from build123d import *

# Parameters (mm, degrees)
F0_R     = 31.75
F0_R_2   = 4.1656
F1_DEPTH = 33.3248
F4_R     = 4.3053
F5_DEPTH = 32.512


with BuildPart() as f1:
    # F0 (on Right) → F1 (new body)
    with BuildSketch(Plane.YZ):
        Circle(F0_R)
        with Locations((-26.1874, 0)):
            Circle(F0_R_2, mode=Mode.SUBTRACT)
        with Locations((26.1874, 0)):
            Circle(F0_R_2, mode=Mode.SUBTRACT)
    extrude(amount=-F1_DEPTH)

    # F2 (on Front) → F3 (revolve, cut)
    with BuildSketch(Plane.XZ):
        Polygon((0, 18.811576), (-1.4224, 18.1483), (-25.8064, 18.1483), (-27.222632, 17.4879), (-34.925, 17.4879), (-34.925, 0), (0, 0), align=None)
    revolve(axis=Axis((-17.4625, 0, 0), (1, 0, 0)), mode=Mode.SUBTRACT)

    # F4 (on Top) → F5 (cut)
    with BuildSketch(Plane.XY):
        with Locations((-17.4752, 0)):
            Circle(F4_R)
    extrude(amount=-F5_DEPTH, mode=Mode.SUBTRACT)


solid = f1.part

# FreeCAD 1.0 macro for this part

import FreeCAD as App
import Part
import Sketcher
Q = App.Units.Quantity


def add_polygon(sketch, points):
    """Adds a closed chain of lines whose ends are joined by coincident constraints."""
    first, n = sketch.GeometryCount, len(points)
    for a, b in zip(points, points[1:] + points[:1]):
        sketch.addGeometry(Part.LineSegment(App.Vector(*a, 0), App.Vector(*b, 0)), False)
    for i in range(n):
        sketch.addConstraint(Sketcher.Constraint("Coincident", first + i, 2, first + (i + 1) % n, 1))

doc = App.newDocument("Part")
body = doc.addObject("PartDesign::Body", "Body")

sketch1 = body.newObject("Sketcher::SketchObject", "Sketch")
sketch1.AttachmentSupport = (doc.getObject("YZ_Plane"), [""])
sketch1.MapMode = "FlatFace"
sketch1.addGeometry(Part.Circle(App.Vector(0, 0, 0), App.Vector(0, 0, 1), 31.8), False)
sketch1.addGeometry(Part.Circle(App.Vector(-26.2, 0, 0), App.Vector(0, 0, 1), 4.2), False)
sketch1.addGeometry(Part.Circle(App.Vector(26.2, 0, 0), App.Vector(0, 0, 1), 4.2), False)
sketch1.addConstraint(Sketcher.Constraint("Coincident", 0, 3, -1, 1))
sketch1.addConstraint(Sketcher.Constraint("Equal", 1, 2))
sketch1.addConstraint(Sketcher.Constraint("Symmetric", 1, 3, 2, 3, -1, 1))
sketch1.addConstraint(Sketcher.Constraint("PointOnObject", 1, 3, -1))
sketch1.addConstraint(Sketcher.Constraint("Diameter", 0, Q("2.5 in")))
sketch1.addConstraint(Sketcher.Constraint("Diameter", 1, Q("0.328 in")))
sketch1.addConstraint(Sketcher.Constraint("DistanceX", 1, 3, -1, 1, Q("1.031 in")))
pad1 = body.newObject("PartDesign::Pad", "Pad")
pad1.Profile = sketch1
pad1.Length = Q("1.312 in")
pad1.Reversed = True

sketch2 = body.newObject("Sketcher::SketchObject", "Sketch001")
sketch2.AttachmentSupport = (doc.getObject("XZ_Plane"), [""])
sketch2.MapMode = "FlatFace"
add_polygon(sketch2, [(0, 18.8), (-1.4, 18.1), (-25.8, 18.1), (-27.2, 17.5), (-34.9, 17.5), (-34.9, 0), (0, 0)])
sketch2.addConstraint(Sketcher.Constraint("Horizontal", 1))
sketch2.addConstraint(Sketcher.Constraint("Horizontal", 3))
sketch2.addConstraint(Sketcher.Constraint("Vertical", 4))
sketch2.addConstraint(Sketcher.Constraint("Horizontal", 5))
sketch2.addConstraint(Sketcher.Constraint("Vertical", 6))
sketch2.addConstraint(Sketcher.Constraint("Coincident", 5, 2, -1, 1))
sketch2.addConstraint(Sketcher.Constraint("Parallel", 0, 2))
sketch2.addConstraint(Sketcher.Constraint("Angle", 0, Q("-155 deg")))
sketch2.addConstraint(Sketcher.Constraint("DistanceX", 1, 2, 1, 1, Q("0.96 in")))
sketch2.addConstraint(Sketcher.Constraint("DistanceX", 5, 1, 5, 2, Q("1.375 in")))
sketch2.addConstraint(Sketcher.Constraint("DistanceY", 4, 2, 4, 1, Q("0.6885 in")))
sketch2.addConstraint(Sketcher.Constraint("DistanceX", 0, 2, -1, 1, Q("0.056 in")))
sketch2.addConstraint(Sketcher.Constraint("DistanceY", 2, 2, 1, 2, Q("0.026 in")))
groove = body.newObject("PartDesign::Groove", "Groove")
groove.Profile = sketch2
groove.ReferenceAxis = (sketch2, ["H_Axis"])
groove.Angle = 360

sketch3 = body.newObject("Sketcher::SketchObject", "Sketch002")
sketch3.AttachmentSupport = (doc.getObject("XY_Plane"), [""])
sketch3.MapMode = "FlatFace"
sketch3.addGeometry(Part.Circle(App.Vector(-17.5, 0, 0), App.Vector(0, 0, 1), 4.3), False)
sketch3.addConstraint(Sketcher.Constraint("PointOnObject", 0, 3, -1))
sketch3.addConstraint(Sketcher.Constraint("Diameter", 0, Q("0.339 in")))
sketch3.addConstraint(Sketcher.Constraint("DistanceX", 0, 3, -1, 1, Q("0.688 in")))
pocket1 = body.newObject("PartDesign::Pocket", "Pocket")
pocket1.Profile = sketch3
pocket1.Length = Q("1.28 in")

doc.recompute()
